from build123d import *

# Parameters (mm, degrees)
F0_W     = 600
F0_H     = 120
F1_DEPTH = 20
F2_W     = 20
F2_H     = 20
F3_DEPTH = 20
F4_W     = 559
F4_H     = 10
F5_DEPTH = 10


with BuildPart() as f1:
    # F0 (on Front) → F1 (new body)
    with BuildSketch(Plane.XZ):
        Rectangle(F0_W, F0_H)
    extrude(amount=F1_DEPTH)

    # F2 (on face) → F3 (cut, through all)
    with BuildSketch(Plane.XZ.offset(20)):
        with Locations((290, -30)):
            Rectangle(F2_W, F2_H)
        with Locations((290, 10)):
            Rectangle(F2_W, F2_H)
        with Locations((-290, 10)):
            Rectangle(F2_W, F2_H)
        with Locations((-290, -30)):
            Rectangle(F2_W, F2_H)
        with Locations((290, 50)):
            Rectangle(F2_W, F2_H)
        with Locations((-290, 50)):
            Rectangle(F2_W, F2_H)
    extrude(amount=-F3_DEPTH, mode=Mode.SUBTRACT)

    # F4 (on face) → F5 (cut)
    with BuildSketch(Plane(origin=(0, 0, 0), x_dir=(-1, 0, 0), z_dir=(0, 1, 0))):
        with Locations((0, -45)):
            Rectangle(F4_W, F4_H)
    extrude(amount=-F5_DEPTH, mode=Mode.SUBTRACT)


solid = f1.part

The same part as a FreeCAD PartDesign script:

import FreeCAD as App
import Part
import Sketcher
from FreeCAD import Vector

doc = App.newDocument("Part")
body = doc.addObject("PartDesign::Body", "Body")

sketch1 = body.newObject("Sketcher::SketchObject", "Sketch")
sketch1.AttachmentSupport = (doc.getObject("XZ_Plane"), [""])
sketch1.MapMode = "FlatFace"
sketch1.addGeometry([
    Part.LineSegment(Vector(-300, 60, 0), Vector(-300, -60, 0)),
    Part.LineSegment(Vector(-300, -60, 0), Vector(300, -60, 0)),
    Part.LineSegment(Vector(300, -60, 0), Vector(300, 60, 0)),
    Part.LineSegment(Vector(300, 60, 0), Vector(-300, 60, 0)),
], False)
sketch1.addConstraint([
    Sketcher.Constraint("Coincident", 0, 2, 1, 1),
    Sketcher.Constraint("Coincident", 1, 2, 2, 1),
    Sketcher.Constraint("Coincident", 2, 2, 3, 1),
    Sketcher.Constraint("Coincident", 3, 2, 0, 1),
    Sketcher.Constraint("Vertical", 0),
    Sketcher.Constraint("Horizontal", 1),
    Sketcher.Constraint("Vertical", 2),
    Sketcher.Constraint("Horizontal", 3),
    Sketcher.Constraint("Symmetric", 0, 2, 2, 2, -1, 1),
    Sketcher.Constraint("DistanceX", 1, 1, 1, 2, 600.0),
    Sketcher.Constraint("DistanceY", 0, 2, 0, 1, 120.0),
])
pad1 = body.newObject("PartDesign::Pad", "Pad")
pad1.Profile = sketch1
pad1.Length = 20

sketch2 = body.newObject("Sketcher::SketchObject", "Sketch001")
sketch2.AttachmentSupport = (doc.getObject("XZ_Plane"), [""])
sketch2.MapMode = "FlatFace"
sketch2.AttachmentOffset = App.Placement(Vector(0, 0, 20), App.Rotation())
sketch2.addGeometry([
    Part.LineSegment(Vector(280, -20, 0), Vector(280, -40, 0)),
    Part.LineSegment(Vector(280, -40, 0), Vector(300, -40, 0)),
    Part.LineSegment(Vector(300, -40, 0), Vector(300, -20, 0)),
    Part.LineSegment(Vector(300, -20, 0), Vector(280, -20, 0)),
    Part.LineSegment(Vector(280, 20, 0), Vector(280, 0, 0)),
    Part.LineSegment(Vector(280, 0, 0), Vector(300, 0, 0)),
    Part.LineSegment(Vector(300, 0, 0), Vector(300, 20, 0)),
    Part.LineSegment(Vector(300, 20, 0), Vector(280, 20, 0)),
    Part.LineSegment(Vector(-300, 20, 0), Vector(-300, 0, 0)),
    Part.LineSegment(Vector(-300, 0, 0), Vector(-280, 0, 0)),
    Part.LineSegment(Vector(-280, 0, 0), Vector(-280, 20, 0)),
    Part.LineSegment(Vector(-280, 20, 0), Vector(-300, 20, 0)),
    Part.LineSegment(Vector(-300, -20, 0), Vector(-300, -40, 0)),
    Part.LineSegment(Vector(-300, -40, 0), Vector(-280, -40, 0)),
    Part.LineSegment(Vector(-280, -40, 0), Vector(-280, -20, 0)),
    Part.LineSegment(Vector(-280, -20, 0), Vector(-300, -20, 0)),
    Part.LineSegment(Vector(280, 60, 0), Vector(280, 40, 0)),
    Part.LineSegment(Vector(280, 40, 0), Vector(300, 40, 0)),
    Part.LineSegment(Vector(300, 40, 0), Vector(300, 60, 0)),
    Part.LineSegment(Vector(300, 60, 0), Vector(280, 60, 0)),
    Part.LineSegment(Vector(-300, 60, 0), Vector(-300, 40, 0)),
    Part.LineSegment(Vector(-300, 40, 0), Vector(-280, 40, 0)),
    Part.LineSegment(Vector(-280, 40, 0), Vector(-280, 60, 0)),
    Part.LineSegment(Vector(-280, 60, 0), Vector(-300, 60, 0)),
], False)
sketch2.addConstraint([
    Sketcher.Constraint("Coincident", 0, 2, 1, 1),
    Sketcher.Constraint("Coincident", 1, 2, 2, 1),
    Sketcher.Constraint("Coincident", 2, 2, 3, 1),
    Sketcher.Constraint("Coincident", 3, 2, 0, 1),
    Sketcher.Constraint("Coincident", 4, 2, 5, 1),
    Sketcher.Constraint("Coincident", 5, 2, 6, 1),
    Sketcher.Constraint("Coincident", 6, 2, 7, 1),
    Sketcher.Constraint("Coincident", 7, 2, 4, 1),
    Sketcher.Constraint("Coincident", 8, 2, 9, 1),
    Sketcher.Constraint("Coincident", 9, 2, 10, 1),
    Sketcher.Constraint("Coincident", 10, 2, 11, 1),
    Sketcher.Constraint("Coincident", 11, 2, 8, 1),
    Sketcher.Constraint("Coincident", 12, 2, 13, 1),
    Sketcher.Constraint("Coincident", 13, 2, 14, 1),
    Sketcher.Constraint("Coincident", 14, 2, 15, 1),
    Sketcher.Constraint("Coincident", 15, 2, 12, 1),
    Sketcher.Constraint("Coincident", 16, 2, 17, 1),
    Sketcher.Constraint("Coincident", 17, 2, 18, 1),
    Sketcher.Constraint("Coincident", 18, 2, 19, 1),
    Sketcher.Constraint("Coincident", 19, 2, 16, 1),
    Sketcher.Constraint("Coincident", 20, 2, 21, 1),
    Sketcher.Constraint("Coincident", 21, 2, 22, 1),
    Sketcher.Constraint("Coincident", 22, 2, 23, 1),
    Sketcher.Constraint("Coincident", 23, 2, 20, 1),
    Sketcher.Constraint("Vertical", 0),
    Sketcher.Constraint("Horizontal", 1),
    Sketcher.Constraint("Vertical", 2),
    Sketcher.Constraint("Horizontal", 3),
    Sketcher.Constraint("Vertical", 4),
    Sketcher.Constraint("Horizontal", 5),
    Sketcher.Constraint("Vertical", 6),
    Sketcher.Constraint("Horizontal", 7),
    Sketcher.Constraint("Vertical", 8),
    Sketcher.Constraint("Horizontal", 9),
    Sketcher.Constraint("Vertical", 10),
    Sketcher.Constraint("Horizontal", 11),
    Sketcher.Constraint("Vertical", 12),
    Sketcher.Constraint("Horizontal", 13),
    Sketcher.Constraint("Vertical", 14),
    Sketcher.Constraint("Horizontal", 15),
    Sketcher.Constraint("Vertical", 16),
    Sketcher.Constraint("Horizontal", 17),
    Sketcher.Constraint("Vertical", 18),
    Sketcher.Constraint("Horizontal", 19),
    Sketcher.Constraint("Vertical", 20),
    Sketcher.Constraint("Horizontal", 21),
    Sketcher.Constraint("Vertical", 22),
    Sketcher.Constraint("Horizontal", 23),
    Sketcher.Constraint("Symmetric", 5, 2, 8, 2, -1, 1),
    Sketcher.Constraint("Symmetric", 3, 2, 10, 2, -1, 1),
    Sketcher.Constraint("Symmetric", 7, 2, 14, 2, -1, 1),
    Sketcher.Constraint("Symmetric", 13, 2, 16, 2, -1, 1),
    Sketcher.Constraint("Symmetric", 1, 2, 20, 2, -1, 1),
    Sketcher.Constraint("Symmetric", 4, 2, 9, 2, -2),
    Sketcher.Constraint("Symmetric", 1, 2, 12, 2, -2),
    Sketcher.Constraint("Symmetric", 19, 2, 22, 2, -2),
    Sketcher.Constraint("Symmetric", 2, 2, 6, 2, -1),
    Sketcher.Constraint("Vertical", 6, 2, 17, 2),
    Sketcher.Constraint("Equal", 23, 0),
    Sketcher.Constraint("Equal", 2, 4),
    Sketcher.Constraint("Equal", 14, 16),
    Sketcher.Constraint("DistanceX", 1, 1, 1, 2, 20.0),
    Sketcher.Constraint("DistanceX", -1, 1, 0, 2, 280.0),
])
pocket1 = body.newObject("PartDesign::Pocket", "Pocket")
pocket1.Profile = sketch2
pocket1.Type = "ThroughAll"

sketch3 = body.newObject("Sketcher::SketchObject", "Sketch002")
sketch3.AttachmentSupport = (doc.getObject("XZ_Plane"), [""])
sketch3.MapMode = "FlatFace"
sketch3.addGeometry([
    Part.LineSegment(Vector(279.5, -40, 0), Vector(279.5, -50, 0)),
    Part.LineSegment(Vector(279.5, -50, 0), Vector(-279.5, -50, 0)),
    Part.LineSegment(Vector(-279.5, -50, 0), Vector(-279.5, -40, 0)),
    Part.LineSegment(Vector(-279.5, -40, 0), Vector(279.5, -40, 0)),
], False)
sketch3.addConstraint([
    Sketcher.Constraint("Coincident", 0, 2, 1, 1),
    Sketcher.Constraint("Coincident", 1, 2, 2, 1),
    Sketcher.Constraint("Coincident", 2, 2, 3, 1),
    Sketcher.Constraint("Coincident", 3, 2, 0, 1),
    Sketcher.Constraint("Vertical", 0),
    Sketcher.Constraint("Horizontal", 1),
    Sketcher.Constraint("Vertical", 2),
    Sketcher.Constraint("Horizontal", 3),
    Sketcher.Constraint("DistanceX", 1, 2, 1, 1, 559.0),
    Sketcher.Constraint("DistanceY", 0, 2, 0, 1, 10.0),
    Sketcher.Constraint("DistanceY", 0, 2, -1, 1, 50.0),
    Sketcher.Constraint("DistanceX", -1, 1, 0, 2, 279.5),
])
pocket2 = body.newObject("PartDesign::Pocket", "Pocket001")
pocket2.Profile = sketch3
pocket2.Length = 10
pocket2.Reversed = True

doc.recompute()
